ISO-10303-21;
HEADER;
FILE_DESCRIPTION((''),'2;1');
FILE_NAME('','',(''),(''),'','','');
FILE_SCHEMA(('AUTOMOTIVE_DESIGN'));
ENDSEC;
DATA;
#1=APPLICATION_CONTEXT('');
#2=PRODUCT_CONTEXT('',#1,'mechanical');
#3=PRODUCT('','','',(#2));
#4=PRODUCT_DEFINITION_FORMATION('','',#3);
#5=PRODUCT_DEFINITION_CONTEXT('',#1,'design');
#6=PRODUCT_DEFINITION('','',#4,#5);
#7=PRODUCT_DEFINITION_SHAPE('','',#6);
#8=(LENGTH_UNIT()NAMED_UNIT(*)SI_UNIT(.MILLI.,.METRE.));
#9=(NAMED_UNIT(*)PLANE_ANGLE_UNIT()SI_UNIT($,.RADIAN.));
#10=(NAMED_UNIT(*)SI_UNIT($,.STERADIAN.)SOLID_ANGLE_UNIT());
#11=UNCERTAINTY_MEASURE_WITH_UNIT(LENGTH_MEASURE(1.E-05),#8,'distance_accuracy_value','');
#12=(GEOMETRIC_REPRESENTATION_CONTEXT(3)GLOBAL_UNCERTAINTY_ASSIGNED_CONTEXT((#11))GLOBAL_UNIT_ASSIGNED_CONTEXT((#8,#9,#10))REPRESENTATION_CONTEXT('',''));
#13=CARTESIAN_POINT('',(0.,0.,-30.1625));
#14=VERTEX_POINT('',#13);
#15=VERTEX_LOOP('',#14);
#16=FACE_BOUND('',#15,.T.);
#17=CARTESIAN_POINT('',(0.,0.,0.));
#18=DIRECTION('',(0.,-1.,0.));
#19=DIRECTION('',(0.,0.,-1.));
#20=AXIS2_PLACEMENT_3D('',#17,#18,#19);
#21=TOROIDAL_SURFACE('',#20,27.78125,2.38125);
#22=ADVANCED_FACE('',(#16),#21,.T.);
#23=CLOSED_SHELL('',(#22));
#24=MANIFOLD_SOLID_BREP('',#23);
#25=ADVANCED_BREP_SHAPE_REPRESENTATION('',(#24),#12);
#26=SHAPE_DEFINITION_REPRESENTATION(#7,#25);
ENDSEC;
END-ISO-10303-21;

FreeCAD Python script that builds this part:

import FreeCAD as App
import Part
import Sketcher

V = App.Vector
Q = App.Units.Quantity

doc = App.newDocument("Part")
body = doc.addObject("PartDesign::Body", "Body")

# Sketch on XY plane
sketch1 = doc.addObject("Sketcher::SketchObject", "Sketch")
body.addObject(sketch1)
sketch1.AttachmentSupport = (doc.XY_Plane, [""])
sketch1.MapMode = "FlatFace"
sketch1.addGeometry(Part.Circle(V(-27.78125, 0, 0), V(0, 0, 1), 2.38125), False)
sketch1.addConstraint(Sketcher.Constraint("PointOnObject", 0, 3, -1))
sketch1.addConstraint(Sketcher.Constraint("Diameter", 0, Q("0.1875 in")))
sketch1.addConstraint(Sketcher.Constraint("DistanceX", 0, 3, -1, 1, Q("1.09375 in")))
revolution = doc.addObject("PartDesign::Revolution", "Revolution")
body.addObject(revolution)
revolution.Profile = sketch1
revolution.ReferenceAxis = (sketch1, ["V_Axis"])
revolution.Angle = 360

doc.recompute()
